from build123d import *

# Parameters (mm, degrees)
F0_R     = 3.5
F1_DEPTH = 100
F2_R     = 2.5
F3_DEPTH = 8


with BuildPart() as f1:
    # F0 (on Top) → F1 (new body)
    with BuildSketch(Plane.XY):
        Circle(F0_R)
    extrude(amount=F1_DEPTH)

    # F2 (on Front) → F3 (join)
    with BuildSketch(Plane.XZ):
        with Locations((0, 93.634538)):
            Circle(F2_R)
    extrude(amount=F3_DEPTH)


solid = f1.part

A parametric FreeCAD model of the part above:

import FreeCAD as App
import Part
import Sketcher
from FreeCAD import Vector

doc = App.newDocument("Part")
body = doc.addObject("PartDesign::Body", "Body")

# Sketch on XY plane
sketch1 = doc.addObject("Sketcher::SketchObject", "Sketch")
body.addObject(sketch1)
sketch1.AttachmentSupport = (doc.XY_Plane, [""])
sketch1.MapMode = "FlatFace"
sketch1.addGeometry(Part.Circle(Vector(0, 0, 0), Vector(0, 0, 1), 3.5), False)
sketch1.addConstraint([
    Sketcher.Constraint("Coincident", 0, 3, -1, 1),
    Sketcher.Constraint("Diameter", 0, 7.0),
])
pad1 = doc.addObject("PartDesign::Pad", "Pad")
body.addObject(pad1)
pad1.Profile = sketch1
pad1.Length = 100

# Sketch on XZ plane
sketch2 = doc.addObject("Sketcher::SketchObject", "Sketch001")
body.addObject(sketch2)
sketch2.AttachmentSupport = (doc.XZ_Plane, [""])
sketch2.MapMode = "FlatFace"
sketch2.addGeometry(Part.Circle(Vector(0, 93.6, 0), Vector(0, 0, 1), 2.5), False)
sketch2.addConstraint([
    Sketcher.Constraint("PointOnObject", 0, 3, -2),
    Sketcher.Constraint("Diameter", 0, 5.0),
    Sketcher.Constraint("DistanceY", -1, 1, 0, 3, 93.634538),
])
pad2 = doc.addObject("PartDesign::Pad", "Pad001")
body.addObject(pad2)
pad2.Profile = sketch2
pad2.Length = 8

doc.recompute()
